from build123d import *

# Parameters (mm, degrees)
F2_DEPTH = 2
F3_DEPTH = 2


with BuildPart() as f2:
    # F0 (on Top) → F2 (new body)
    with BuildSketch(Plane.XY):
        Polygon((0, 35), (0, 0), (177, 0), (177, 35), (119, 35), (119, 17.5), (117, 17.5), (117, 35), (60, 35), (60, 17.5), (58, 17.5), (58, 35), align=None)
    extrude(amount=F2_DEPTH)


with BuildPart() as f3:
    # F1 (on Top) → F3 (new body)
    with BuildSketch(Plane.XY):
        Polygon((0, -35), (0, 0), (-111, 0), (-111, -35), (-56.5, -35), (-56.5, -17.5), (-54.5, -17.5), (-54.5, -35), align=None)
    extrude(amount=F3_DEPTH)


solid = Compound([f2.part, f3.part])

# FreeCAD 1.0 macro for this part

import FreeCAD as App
import Part
import Sketcher
from FreeCAD import Vector


def add_polygon(sketch, points):
    """Adds a closed chain of lines whose ends are joined by coincident constraints."""
    first, n = sketch.GeometryCount, len(points)
    for a, b in zip(points, points[1:] + points[:1]):
        sketch.addGeometry(Part.LineSegment(App.Vector(*a, 0), App.Vector(*b, 0)), False)
    for i in range(n):
        sketch.addConstraint(Sketcher.Constraint("Coincident", first + i, 2, first + (i + 1) % n, 1))

doc = App.newDocument("Part")
params = doc.addObject("Spreadsheet::Sheet", "Params")
for row, (alias, value) in enumerate([
    ("sketch1_width", "177 mm"),
    ("sketch1_width2", "58 mm"),
    ("sketch1_width3", "2 mm"),
    ("sketch1_height", "35 mm"),
    ("sketch1_height2", "17.5 mm"),
    ("pad1_length", "2 mm"),
    ("sketch2_width", "111 mm"),
    ("sketch2_width2", "2 mm"),
    ("sketch2_height", "35 mm"),
    ("sketch2_height2", "17.5 mm"),
    ("pad2_length", "2 mm"),
], start=1):
    params.set(f"A{row}", alias)
    params.set(f"B{row}", "=" + value)
    params.setAlias(f"B{row}", alias)

body = doc.addObject("PartDesign::Body", "Body")

sketch1 = doc.addObject("Sketcher::SketchObject", "Sketch")
body.addObject(sketch1)
sketch1.AttachmentSupport = (doc.XY_Plane, [""])
sketch1.MapMode = "FlatFace"
add_polygon(sketch1, [(0, 35), (0, 0), (177, 0), (177, 35), (119, 35), (119, 17.5), (117, 17.5), (117, 35), (60, 35), (60, 17.5), (58, 17.5), (58, 35)])
sketch1.addConstraint([
    Sketcher.Constraint("Vertical", 0),
    Sketcher.Constraint("Horizontal", 1),
    Sketcher.Constraint("Vertical", 2),
    Sketcher.Constraint("Horizontal", 3),
    Sketcher.Constraint("Vertical", 4),
    Sketcher.Constraint("Horizontal", 5),
    Sketcher.Constraint("Vertical", 6),
    Sketcher.Constraint("Horizontal", 7),
    Sketcher.Constraint("Vertical", 8),
    Sketcher.Constraint("Horizontal", 9),
    Sketcher.Constraint("Vertical", 10),
    Sketcher.Constraint("Horizontal", 11),
    Sketcher.Constraint("Coincident", 0, 2, -1, 1),
    Sketcher.Constraint("Horizontal", 3, 2, 6, 2),
    Sketcher.Constraint("Horizontal", 5, 2, 8, 2),
    Sketcher.Constraint("Horizontal", 7, 2, 10, 2),
    Sketcher.Constraint("Equal", 5, 9),
    Sketcher.Constraint("Equal", 3, 11),
    Sketcher.Constraint("DistanceX", 1, 1, 1, 2, 177.0),
    Sketcher.Constraint("DistanceX", 3, 2, 3, 1, 58.0),
    Sketcher.Constraint("DistanceX", 5, 2, 5, 1, 2.0),
    Sketcher.Constraint("DistanceY", 0, 2, 0, 1, 35.0),
    Sketcher.Constraint("DistanceY", 4, 2, 4, 1, 17.5),
])
sketch1.setExpression("Constraints[30]", "Params.sketch1_width")
sketch1.setExpression("Constraints[31]", "Params.sketch1_width2")
sketch1.setExpression("Constraints[32]", "Params.sketch1_width3")
sketch1.setExpression("Constraints[33]", "Params.sketch1_height")
sketch1.setExpression("Constraints[34]", "Params.sketch1_height2")
pad1 = doc.addObject("PartDesign::Pad", "Pad")
body.addObject(pad1)
pad1.Profile = sketch1
pad1.setExpression("Length", "Params.pad1_length")
body2 = doc.addObject("PartDesign::Body", "Body001")

sketch2 = doc.addObject("Sketcher::SketchObject", "Sketch001")
body2.addObject(sketch2)
sketch2.AttachmentSupport = (doc.getObject("XY_Plane001"), [""])
sketch2.MapMode = "FlatFace"
add_polygon(sketch2, [(0, -35), (0, 0), (-111, 0), (-111, -35), (-56.5, -35), (-56.5, -17.5), (-54.5, -17.5), (-54.5, -35)])
sketch2.addConstraint([
    Sketcher.Constraint("Vertical", 0),
    Sketcher.Constraint("Horizontal", 1),
    Sketcher.Constraint("Vertical", 2),
    Sketcher.Constraint("Horizontal", 3),
    Sketcher.Constraint("Vertical", 4),
    Sketcher.Constraint("Horizontal", 5),
    Sketcher.Constraint("Vertical", 6),
    Sketcher.Constraint("Horizontal", 7),
    Sketcher.Constraint("Coincident", 0, 2, -1, 1),
    Sketcher.Constraint("Horizontal", 3, 2, 6, 2),
    Sketcher.Constraint("Equal", 3, 7),
    Sketcher.Constraint("DistanceX", 1, 2, 1, 1, 111.0),
    Sketcher.Constraint("DistanceX", 5, 1, 5, 2, 2.0),
    Sketcher.Constraint("DistanceY", 0, 1, 0, 2, 35.0),
    Sketcher.Constraint("DistanceY", 4, 1, 4, 2, 17.5),
])
sketch2.setExpression("Constraints[19]", "Params.sketch2_width")
sketch2.setExpression("Constraints[20]", "Params.sketch2_width2")
sketch2.setExpression("Constraints[21]", "Params.sketch2_height")
sketch2.setExpression("Constraints[22]", "Params.sketch2_height2")
pad2 = doc.addObject("PartDesign::Pad", "Pad001")
body2.addObject(pad2)
pad2.Profile = sketch2
pad2.setExpression("Length", "Params.pad2_length")

doc.recompute()
